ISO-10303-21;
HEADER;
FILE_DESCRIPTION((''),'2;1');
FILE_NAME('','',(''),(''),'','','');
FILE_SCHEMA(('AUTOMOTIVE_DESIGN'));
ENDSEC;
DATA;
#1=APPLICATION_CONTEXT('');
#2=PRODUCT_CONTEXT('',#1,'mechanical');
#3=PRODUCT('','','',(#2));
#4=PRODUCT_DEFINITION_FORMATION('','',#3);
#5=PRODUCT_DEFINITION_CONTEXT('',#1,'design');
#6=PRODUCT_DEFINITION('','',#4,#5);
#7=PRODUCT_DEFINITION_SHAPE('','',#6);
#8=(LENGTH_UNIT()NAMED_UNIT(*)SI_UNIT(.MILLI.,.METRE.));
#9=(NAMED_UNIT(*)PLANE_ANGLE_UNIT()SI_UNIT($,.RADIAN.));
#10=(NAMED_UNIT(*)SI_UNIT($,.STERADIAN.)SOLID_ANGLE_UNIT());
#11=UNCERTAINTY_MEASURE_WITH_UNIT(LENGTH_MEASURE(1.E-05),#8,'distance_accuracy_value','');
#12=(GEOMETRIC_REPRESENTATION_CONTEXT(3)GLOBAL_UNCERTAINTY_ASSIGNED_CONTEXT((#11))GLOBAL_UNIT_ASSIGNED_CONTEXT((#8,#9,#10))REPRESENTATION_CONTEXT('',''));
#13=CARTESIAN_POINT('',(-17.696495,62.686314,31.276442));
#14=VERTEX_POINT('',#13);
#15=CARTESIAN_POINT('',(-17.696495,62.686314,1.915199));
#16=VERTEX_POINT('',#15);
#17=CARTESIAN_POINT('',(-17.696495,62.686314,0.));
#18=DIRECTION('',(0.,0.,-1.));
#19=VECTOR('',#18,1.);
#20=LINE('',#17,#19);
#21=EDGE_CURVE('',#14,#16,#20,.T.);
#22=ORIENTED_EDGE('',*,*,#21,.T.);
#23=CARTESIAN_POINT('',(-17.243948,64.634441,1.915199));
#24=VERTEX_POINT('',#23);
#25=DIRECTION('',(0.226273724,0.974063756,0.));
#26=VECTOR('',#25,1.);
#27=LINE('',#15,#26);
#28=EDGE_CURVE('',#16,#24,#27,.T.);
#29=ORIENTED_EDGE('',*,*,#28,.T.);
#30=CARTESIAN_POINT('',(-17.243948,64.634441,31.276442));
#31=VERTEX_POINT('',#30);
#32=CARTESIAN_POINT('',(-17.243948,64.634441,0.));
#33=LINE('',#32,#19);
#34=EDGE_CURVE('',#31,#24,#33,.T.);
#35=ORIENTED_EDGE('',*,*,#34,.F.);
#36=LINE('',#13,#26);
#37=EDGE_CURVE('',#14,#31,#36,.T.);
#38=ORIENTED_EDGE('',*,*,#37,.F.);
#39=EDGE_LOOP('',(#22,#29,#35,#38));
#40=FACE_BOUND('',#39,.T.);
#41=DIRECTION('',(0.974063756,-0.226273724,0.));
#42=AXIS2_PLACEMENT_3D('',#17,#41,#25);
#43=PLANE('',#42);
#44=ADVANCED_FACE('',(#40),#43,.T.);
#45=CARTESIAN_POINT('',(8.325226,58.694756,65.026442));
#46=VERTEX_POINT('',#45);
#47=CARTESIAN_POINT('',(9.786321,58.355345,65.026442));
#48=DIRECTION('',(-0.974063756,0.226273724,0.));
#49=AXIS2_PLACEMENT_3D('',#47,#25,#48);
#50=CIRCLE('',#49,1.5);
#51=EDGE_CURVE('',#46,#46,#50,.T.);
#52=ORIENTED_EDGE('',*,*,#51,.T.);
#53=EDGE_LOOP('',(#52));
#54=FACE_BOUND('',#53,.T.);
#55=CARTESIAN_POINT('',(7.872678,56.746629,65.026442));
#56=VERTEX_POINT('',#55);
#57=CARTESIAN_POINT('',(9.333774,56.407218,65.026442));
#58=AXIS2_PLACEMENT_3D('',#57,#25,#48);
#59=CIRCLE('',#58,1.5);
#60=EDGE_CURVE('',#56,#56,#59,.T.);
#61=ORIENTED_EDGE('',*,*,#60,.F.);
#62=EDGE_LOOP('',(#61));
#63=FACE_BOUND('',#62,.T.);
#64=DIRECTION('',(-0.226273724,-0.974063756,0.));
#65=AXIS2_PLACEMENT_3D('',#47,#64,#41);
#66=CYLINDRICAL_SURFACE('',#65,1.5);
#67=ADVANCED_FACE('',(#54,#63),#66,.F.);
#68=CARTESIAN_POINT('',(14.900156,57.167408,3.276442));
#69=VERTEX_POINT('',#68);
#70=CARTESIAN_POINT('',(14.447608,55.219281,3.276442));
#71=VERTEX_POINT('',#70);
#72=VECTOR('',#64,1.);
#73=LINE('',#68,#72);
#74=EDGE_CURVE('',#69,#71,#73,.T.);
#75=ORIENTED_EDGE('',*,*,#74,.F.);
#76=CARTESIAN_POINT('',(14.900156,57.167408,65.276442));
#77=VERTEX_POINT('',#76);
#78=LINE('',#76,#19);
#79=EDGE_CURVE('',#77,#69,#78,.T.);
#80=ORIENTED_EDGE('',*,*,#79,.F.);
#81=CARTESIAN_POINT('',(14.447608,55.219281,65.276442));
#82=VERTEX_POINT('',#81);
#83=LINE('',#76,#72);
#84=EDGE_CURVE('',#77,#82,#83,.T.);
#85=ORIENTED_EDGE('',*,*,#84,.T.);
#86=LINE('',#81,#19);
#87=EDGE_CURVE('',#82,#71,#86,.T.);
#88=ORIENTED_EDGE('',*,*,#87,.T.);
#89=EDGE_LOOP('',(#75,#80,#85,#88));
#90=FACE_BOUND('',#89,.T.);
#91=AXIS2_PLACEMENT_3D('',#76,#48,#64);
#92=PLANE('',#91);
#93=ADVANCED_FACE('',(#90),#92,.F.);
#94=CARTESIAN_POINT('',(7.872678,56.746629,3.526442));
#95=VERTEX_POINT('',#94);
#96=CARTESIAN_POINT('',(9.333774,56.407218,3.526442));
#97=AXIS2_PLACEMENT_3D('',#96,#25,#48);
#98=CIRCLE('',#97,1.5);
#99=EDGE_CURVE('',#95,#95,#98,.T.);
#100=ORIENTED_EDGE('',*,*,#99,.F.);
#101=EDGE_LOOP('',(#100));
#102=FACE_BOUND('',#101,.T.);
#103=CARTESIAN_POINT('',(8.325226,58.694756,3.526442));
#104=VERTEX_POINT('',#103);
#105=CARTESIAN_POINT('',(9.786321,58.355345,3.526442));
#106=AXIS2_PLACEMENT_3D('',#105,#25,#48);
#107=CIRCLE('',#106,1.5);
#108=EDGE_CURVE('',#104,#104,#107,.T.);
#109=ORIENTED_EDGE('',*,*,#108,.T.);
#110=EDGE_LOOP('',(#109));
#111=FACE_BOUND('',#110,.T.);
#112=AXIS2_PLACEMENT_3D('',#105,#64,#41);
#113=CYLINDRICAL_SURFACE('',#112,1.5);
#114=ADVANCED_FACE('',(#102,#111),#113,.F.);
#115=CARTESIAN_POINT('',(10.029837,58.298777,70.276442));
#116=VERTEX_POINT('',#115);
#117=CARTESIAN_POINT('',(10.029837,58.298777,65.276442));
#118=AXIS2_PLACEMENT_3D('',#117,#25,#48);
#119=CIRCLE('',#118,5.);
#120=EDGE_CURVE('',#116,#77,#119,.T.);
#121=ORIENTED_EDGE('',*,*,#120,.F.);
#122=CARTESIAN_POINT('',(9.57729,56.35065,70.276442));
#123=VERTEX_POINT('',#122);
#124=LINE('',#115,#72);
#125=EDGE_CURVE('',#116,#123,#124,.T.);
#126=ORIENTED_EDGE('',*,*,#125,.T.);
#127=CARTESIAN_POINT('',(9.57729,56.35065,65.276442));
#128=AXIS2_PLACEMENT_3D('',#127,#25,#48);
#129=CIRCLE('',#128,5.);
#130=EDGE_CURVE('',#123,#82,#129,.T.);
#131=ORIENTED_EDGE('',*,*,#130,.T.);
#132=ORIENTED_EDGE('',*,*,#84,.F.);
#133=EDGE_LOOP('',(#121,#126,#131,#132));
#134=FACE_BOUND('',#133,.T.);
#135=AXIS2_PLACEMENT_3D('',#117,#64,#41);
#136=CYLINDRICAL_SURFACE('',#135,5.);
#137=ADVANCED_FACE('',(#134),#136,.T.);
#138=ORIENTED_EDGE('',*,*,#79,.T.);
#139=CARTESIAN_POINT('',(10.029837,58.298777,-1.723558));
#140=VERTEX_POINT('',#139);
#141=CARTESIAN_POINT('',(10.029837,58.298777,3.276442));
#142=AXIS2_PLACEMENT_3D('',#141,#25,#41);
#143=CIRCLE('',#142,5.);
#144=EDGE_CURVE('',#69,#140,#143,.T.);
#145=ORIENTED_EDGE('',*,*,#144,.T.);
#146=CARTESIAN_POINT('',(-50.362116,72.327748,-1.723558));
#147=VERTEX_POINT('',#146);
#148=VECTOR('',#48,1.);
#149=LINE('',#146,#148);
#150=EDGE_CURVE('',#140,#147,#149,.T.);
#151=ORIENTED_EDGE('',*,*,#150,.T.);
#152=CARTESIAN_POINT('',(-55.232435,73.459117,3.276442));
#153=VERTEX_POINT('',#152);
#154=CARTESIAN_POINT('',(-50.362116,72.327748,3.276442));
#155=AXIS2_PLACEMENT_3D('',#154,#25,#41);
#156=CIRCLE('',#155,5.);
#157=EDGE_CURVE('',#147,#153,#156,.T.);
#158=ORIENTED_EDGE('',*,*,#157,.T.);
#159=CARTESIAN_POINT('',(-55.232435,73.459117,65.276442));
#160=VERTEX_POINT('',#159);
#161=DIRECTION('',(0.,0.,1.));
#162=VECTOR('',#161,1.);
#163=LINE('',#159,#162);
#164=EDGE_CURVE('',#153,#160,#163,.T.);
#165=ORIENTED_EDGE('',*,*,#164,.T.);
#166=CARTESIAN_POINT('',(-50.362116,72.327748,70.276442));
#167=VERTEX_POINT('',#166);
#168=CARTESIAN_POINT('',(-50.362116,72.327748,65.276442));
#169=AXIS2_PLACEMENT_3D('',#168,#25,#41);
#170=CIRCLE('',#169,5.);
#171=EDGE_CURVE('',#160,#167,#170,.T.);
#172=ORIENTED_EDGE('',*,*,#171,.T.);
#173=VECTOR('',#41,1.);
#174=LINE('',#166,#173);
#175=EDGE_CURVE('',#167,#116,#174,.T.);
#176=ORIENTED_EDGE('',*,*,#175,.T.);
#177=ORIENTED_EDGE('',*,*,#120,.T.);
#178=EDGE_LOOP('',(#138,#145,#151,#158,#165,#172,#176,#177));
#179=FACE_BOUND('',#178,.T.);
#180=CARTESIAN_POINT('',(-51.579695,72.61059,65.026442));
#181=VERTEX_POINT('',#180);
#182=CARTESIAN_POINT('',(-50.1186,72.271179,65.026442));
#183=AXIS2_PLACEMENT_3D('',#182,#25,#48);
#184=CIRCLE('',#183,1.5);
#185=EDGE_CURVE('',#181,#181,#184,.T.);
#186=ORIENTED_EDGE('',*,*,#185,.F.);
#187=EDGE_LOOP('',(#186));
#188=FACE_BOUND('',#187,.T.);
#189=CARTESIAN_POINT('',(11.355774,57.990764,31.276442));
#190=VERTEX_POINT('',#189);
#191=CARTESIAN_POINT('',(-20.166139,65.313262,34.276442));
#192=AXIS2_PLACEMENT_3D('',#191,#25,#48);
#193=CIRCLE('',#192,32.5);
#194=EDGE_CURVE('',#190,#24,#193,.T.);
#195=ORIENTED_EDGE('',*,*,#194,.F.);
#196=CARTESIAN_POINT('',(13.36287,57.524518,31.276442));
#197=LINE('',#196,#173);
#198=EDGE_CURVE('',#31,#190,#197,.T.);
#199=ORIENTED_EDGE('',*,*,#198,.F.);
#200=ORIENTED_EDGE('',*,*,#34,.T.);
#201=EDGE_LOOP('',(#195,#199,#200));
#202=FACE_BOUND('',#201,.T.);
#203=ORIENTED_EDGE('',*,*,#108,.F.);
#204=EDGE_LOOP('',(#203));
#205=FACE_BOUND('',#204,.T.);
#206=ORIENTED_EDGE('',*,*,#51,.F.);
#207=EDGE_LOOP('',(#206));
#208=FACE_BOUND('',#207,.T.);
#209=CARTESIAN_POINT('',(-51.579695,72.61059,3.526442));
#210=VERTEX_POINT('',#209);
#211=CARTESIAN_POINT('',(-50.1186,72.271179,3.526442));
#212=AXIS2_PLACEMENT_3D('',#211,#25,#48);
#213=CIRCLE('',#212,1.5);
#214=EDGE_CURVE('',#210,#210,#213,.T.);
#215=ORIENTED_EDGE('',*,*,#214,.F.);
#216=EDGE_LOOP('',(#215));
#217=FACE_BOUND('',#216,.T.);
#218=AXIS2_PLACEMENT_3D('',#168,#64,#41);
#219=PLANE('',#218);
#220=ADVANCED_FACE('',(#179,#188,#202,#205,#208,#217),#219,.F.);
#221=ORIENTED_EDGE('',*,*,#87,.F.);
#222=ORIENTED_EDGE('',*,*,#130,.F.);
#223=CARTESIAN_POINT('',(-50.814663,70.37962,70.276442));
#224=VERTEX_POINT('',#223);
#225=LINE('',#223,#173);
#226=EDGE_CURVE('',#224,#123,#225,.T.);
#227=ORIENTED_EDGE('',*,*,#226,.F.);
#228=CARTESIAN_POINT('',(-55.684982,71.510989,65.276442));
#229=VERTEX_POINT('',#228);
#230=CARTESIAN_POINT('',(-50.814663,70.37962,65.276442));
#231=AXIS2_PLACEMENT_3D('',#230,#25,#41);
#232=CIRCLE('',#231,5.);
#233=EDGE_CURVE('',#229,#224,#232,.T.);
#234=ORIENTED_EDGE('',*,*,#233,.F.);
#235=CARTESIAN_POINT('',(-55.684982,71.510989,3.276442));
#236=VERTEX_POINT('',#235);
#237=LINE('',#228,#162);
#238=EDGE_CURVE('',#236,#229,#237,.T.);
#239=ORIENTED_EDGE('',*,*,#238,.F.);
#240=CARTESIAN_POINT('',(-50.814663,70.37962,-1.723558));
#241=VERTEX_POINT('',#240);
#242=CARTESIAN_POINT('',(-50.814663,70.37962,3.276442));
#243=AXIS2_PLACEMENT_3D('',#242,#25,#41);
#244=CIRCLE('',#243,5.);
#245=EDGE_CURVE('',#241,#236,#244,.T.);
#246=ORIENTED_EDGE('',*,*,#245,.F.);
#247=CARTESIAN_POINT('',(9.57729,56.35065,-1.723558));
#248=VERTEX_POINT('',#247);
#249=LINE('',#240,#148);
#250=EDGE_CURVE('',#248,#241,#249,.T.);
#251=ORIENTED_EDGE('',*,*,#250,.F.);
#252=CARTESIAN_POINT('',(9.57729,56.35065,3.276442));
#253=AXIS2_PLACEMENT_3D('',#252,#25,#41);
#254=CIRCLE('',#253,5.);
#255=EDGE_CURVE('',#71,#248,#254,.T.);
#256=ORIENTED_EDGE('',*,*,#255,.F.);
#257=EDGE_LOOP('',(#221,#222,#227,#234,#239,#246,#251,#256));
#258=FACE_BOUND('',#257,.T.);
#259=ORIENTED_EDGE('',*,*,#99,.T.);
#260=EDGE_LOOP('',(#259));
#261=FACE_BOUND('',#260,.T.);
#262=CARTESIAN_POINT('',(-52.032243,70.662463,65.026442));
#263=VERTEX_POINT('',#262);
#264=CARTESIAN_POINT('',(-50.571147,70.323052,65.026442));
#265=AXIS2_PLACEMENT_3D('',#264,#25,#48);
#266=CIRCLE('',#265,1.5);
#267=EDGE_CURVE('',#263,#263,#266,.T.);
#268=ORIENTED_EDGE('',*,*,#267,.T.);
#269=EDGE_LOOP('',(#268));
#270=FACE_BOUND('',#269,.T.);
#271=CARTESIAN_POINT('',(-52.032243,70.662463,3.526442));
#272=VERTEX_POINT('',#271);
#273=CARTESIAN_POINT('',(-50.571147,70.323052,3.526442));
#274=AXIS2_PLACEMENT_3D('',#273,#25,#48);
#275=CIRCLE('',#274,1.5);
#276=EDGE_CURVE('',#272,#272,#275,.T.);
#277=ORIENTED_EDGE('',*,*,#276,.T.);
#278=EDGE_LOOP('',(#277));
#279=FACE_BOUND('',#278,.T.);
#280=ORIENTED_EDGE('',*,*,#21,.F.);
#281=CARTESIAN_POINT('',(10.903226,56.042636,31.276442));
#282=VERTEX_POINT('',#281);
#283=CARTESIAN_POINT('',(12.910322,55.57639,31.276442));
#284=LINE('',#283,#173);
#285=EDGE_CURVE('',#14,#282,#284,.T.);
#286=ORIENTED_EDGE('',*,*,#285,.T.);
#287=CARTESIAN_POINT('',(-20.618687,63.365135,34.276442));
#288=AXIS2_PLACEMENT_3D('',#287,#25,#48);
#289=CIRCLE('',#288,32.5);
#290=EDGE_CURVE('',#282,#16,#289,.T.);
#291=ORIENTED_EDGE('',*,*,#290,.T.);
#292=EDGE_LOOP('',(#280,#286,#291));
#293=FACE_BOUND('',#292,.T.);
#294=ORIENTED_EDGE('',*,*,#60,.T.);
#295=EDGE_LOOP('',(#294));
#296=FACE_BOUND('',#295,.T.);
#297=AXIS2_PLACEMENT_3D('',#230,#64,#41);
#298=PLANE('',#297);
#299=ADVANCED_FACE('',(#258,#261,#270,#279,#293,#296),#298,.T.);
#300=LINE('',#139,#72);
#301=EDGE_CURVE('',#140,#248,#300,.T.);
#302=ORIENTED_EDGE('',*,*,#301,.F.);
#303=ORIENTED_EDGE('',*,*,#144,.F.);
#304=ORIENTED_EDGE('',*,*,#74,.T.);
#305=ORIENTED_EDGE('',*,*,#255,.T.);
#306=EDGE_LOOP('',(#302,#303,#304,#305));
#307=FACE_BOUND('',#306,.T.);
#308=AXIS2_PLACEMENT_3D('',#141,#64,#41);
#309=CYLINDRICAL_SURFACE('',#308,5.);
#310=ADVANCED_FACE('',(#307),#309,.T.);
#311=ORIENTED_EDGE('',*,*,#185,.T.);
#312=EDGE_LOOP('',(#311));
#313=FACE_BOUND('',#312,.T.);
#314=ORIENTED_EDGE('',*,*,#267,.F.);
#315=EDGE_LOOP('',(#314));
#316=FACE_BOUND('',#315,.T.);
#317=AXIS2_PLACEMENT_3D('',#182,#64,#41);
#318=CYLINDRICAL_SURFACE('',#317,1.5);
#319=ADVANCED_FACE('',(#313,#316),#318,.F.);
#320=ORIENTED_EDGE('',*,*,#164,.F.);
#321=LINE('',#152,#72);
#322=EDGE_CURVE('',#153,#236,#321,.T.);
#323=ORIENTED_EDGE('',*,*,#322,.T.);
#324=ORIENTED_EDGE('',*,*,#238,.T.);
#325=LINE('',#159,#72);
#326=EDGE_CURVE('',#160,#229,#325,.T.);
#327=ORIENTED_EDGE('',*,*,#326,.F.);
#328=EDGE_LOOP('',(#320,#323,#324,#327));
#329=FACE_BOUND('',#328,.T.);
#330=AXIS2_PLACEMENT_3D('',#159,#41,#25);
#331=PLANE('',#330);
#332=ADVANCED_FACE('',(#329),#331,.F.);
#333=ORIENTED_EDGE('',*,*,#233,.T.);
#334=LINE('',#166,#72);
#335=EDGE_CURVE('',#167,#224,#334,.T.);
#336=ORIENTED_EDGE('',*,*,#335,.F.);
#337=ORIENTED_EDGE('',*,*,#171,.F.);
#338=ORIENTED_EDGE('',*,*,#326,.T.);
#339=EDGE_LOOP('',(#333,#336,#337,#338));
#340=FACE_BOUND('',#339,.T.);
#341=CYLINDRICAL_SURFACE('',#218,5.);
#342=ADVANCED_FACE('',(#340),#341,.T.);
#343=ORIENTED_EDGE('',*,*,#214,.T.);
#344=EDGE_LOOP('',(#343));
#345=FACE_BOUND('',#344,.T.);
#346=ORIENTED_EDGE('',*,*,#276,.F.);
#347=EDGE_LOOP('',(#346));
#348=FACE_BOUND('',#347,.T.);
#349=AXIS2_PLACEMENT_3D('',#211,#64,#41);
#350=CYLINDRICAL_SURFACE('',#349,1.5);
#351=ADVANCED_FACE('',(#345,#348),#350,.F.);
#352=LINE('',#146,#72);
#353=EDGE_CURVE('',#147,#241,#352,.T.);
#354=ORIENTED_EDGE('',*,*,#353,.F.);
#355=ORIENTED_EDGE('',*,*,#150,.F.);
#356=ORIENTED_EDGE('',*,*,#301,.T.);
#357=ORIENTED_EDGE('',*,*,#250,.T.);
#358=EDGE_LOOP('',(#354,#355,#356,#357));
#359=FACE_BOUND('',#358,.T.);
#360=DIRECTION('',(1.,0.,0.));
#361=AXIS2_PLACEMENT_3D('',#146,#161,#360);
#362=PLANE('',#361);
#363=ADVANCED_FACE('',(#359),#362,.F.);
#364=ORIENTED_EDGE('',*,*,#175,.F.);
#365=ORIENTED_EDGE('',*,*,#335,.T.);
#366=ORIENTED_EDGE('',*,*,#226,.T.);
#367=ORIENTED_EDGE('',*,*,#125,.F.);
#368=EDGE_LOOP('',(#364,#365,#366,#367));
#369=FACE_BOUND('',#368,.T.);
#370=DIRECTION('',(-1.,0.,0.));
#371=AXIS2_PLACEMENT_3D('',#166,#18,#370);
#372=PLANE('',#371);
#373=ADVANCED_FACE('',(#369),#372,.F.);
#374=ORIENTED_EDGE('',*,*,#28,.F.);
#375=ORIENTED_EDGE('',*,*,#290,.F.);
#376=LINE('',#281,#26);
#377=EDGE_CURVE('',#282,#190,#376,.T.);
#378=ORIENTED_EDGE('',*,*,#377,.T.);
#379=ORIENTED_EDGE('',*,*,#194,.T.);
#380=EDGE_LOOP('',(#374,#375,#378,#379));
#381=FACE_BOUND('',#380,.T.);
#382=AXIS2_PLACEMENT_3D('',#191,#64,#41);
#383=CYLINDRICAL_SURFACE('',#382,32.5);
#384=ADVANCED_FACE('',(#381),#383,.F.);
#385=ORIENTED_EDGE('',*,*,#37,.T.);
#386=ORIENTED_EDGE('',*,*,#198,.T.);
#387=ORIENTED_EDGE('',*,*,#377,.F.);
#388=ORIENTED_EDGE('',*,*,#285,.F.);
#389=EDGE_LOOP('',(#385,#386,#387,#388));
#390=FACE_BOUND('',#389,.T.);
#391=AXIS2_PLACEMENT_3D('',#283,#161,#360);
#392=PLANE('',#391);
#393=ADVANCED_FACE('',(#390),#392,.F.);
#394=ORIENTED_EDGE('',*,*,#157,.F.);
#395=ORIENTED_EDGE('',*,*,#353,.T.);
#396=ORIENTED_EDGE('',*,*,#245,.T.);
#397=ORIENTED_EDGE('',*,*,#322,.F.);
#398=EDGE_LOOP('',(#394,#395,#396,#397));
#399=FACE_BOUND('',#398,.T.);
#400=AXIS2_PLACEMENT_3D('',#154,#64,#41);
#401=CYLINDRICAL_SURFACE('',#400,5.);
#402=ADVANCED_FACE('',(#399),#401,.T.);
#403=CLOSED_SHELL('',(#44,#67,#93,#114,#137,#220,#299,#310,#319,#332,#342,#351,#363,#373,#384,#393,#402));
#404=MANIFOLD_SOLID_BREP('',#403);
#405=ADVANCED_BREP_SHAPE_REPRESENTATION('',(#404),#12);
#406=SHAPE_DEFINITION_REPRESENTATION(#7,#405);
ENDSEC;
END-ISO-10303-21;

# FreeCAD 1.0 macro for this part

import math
import FreeCAD as App
import Part
import Sketcher

V = App.Vector
Q = App.Units.Quantity

doc = App.newDocument("Part")
body = doc.addObject("PartDesign::Body", "Body")

sketch1 = body.newObject("Sketcher::SketchObject", "Sketch")
sketch1.Placement = App.Placement(V(12.910322, 55.57639, 0), App.Rotation(V(0.974063757, -0.226273724, 0), V(0, 0, -1.000000001), V(0.226273724, 0.974063757, 0), "ZXY"))
sketch1.addGeometry(Part.LineSegment(V(-65.421781, -70.276442, 0), V(-3.421781, -70.276442, 0)), False)
sketch1.addGeometry(Part.ArcOfCircle(Part.Circle(V(-3.421781, -65.276442, 0), V(0, 0, 1), 5), math.radians(-90), math.radians(0)), False)
sketch1.addGeometry(Part.LineSegment(V(1.578219, -65.276442, 0), V(1.578219, -3.276442, 0)), False)
sketch1.addGeometry(Part.ArcOfCircle(Part.Circle(V(-3.421781, -3.276442, 0), V(0, 0, 1), 5), math.radians(0), math.radians(90)), False)
sketch1.addGeometry(Part.LineSegment(V(-3.421781, 1.723558, 0), V(-65.421781, 1.723558, 0)), False)
sketch1.addGeometry(Part.ArcOfCircle(Part.Circle(V(-65.421781, -3.276442, 0), V(0, 0, 1), 5), math.radians(90), math.radians(180)), False)
sketch1.addGeometry(Part.LineSegment(V(-70.421781, -3.276442, 0), V(-70.421781, -65.276442, 0)), False)
sketch1.addGeometry(Part.ArcOfCircle(Part.Circle(V(-65.421781, -65.276442, 0), V(0, 0, 1), 5), math.radians(180), math.radians(270)), False)
sketch1.addGeometry(Part.Circle(V(-65.171781, -65.026442, 0), V(0, 0, 1), 1.5), False)
sketch1.addGeometry(Part.Circle(V(-3.671781, -65.026442, 0), V(0, 0, 1), 1.5), False)
sketch1.addGeometry(Part.Circle(V(-65.171781, -3.526442, 0), V(0, 0, 1), 1.5), False)
sketch1.addGeometry(Part.Circle(V(-34.421781, -34.276442, 0), V(0, 0, 1), 32.5), False)
sketch1.addGeometry(Part.Circle(V(-3.671781, -3.526442, 0), V(0, 0, 1), 1.5), False)
sketch1.addConstraint(Sketcher.Constraint("Tangent", 0, 2, 1, 1))
sketch1.addConstraint(Sketcher.Constraint("Tangent", 1, 2, 2, 1))
sketch1.addConstraint(Sketcher.Constraint("Tangent", 2, 2, 3, 1))
sketch1.addConstraint(Sketcher.Constraint("Tangent", 3, 2, 4, 1))
sketch1.addConstraint(Sketcher.Constraint("Tangent", 4, 2, 5, 1))
sketch1.addConstraint(Sketcher.Constraint("Tangent", 5, 2, 6, 1))
sketch1.addConstraint(Sketcher.Constraint("Tangent", 6, 2, 7, 1))
sketch1.addConstraint(Sketcher.Constraint("Tangent", 7, 2, 0, 1))
sketch1.addConstraint(Sketcher.Constraint("Horizontal", 0))
sketch1.addConstraint(Sketcher.Constraint("Vertical", 2))
sketch1.addConstraint(Sketcher.Constraint("Horizontal", 4))
sketch1.addConstraint(Sketcher.Constraint("Vertical", 6))
sketch1.addConstraint(Sketcher.Constraint("Equal", 1, 3))
sketch1.addConstraint(Sketcher.Constraint("Equal", 3, 5))
sketch1.addConstraint(Sketcher.Constraint("Equal", 5, 7))
sketch1.addConstraint(Sketcher.Constraint("Equal", 8, 9))
sketch1.addConstraint(Sketcher.Constraint("Equal", 9, 10))
sketch1.addConstraint(Sketcher.Constraint("Equal", 10, 12))
sketch1.addConstraint(Sketcher.Constraint("Horizontal", 8, 3, 9, 3))
sketch1.addConstraint(Sketcher.Constraint("Horizontal", 10, 3, 12, 3))
sketch1.addConstraint(Sketcher.Constraint("Vertical", 8, 3, 10, 3))
sketch1.addConstraint(Sketcher.Constraint("Vertical", 9, 3, 12, 3))
sketch1.addConstraint(Sketcher.Constraint("Equal", 4, 2))
sketch1.addConstraint(Sketcher.Constraint("Diameter", 8, Q("3 mm")))
sketch1.addConstraint(Sketcher.Constraint("Diameter", 11, Q("65 mm")))
sketch1.addConstraint(Sketcher.Constraint("Radius", 1, Q("5 mm")))
sketch1.addConstraint(Sketcher.Constraint("DistanceX", 0, 1, 0, 2, Q("62 mm")))
sketch1.addConstraint(Sketcher.Constraint("DistanceX", 11, 3, 1, 3, Q("31 mm")))
sketch1.addConstraint(Sketcher.Constraint("DistanceY", 1, 3, 11, 3, Q("31 mm")))
sketch1.addConstraint(Sketcher.Constraint("DistanceX", 8, 3, 9, 3, Q("61.5 mm")))
sketch1.addConstraint(Sketcher.Constraint("DistanceY", 8, 3, 10, 3, Q("61.5 mm")))
sketch1.addConstraint(Sketcher.Constraint("DistanceX", 7, 3, 8, 3, Q("0.25 mm")))
sketch1.addConstraint(Sketcher.Constraint("DistanceY", 7, 3, 8, 3, Q("0.25 mm")))
sketch1.addConstraint(Sketcher.Constraint("DistanceX", 1, 3, -1, 1, Q("3.421781 mm")))
sketch1.addConstraint(Sketcher.Constraint("DistanceY", 1, 3, -1, 1, Q("65.276442 mm")))
pad1 = body.newObject("PartDesign::Pad", "Pad")
pad1.Profile = sketch1
pad1.Length = 2

sketch2 = body.newObject("Sketcher::SketchObject", "Sketch001")
sketch2.Placement = App.Placement(V(13.36287, 57.524518, 0), App.Rotation(V(0.974063757, -0.226273724, 0), V(0, 0, -1.000000001), V(0.226273724, 0.974063757, 0), "ZXY"))
sketch2.addGeometry(Part.LineSegment(V(-2.060538, -31.276442, 0), V(-31.421781, -31.276442, 0)), False)
sketch2.addGeometry(Part.LineSegment(V(-31.421781, -31.276442, 0), V(-31.421781, -1.915199, 0)), False)
sketch2.addGeometry(Part.ArcOfCircle(Part.Circle(V(-34.421781, -34.276442, 0), V(0, 0, 1), 32.5), math.radians(84.703619), math.radians(365.296381)), False)
sketch2.addConstraint(Sketcher.Constraint("Coincident", 0, 2, 1, 1))
sketch2.addConstraint(Sketcher.Constraint("Coincident", 1, 2, 2, 1))
sketch2.addConstraint(Sketcher.Constraint("Coincident", 2, 2, 0, 1))
sketch2.addConstraint(Sketcher.Constraint("Horizontal", 0))
sketch2.addConstraint(Sketcher.Constraint("Vertical", 1))
sketch2.addConstraint(Sketcher.Constraint("Equal", 0, 1))
sketch2.addConstraint(Sketcher.Constraint("Radius", 2, Q("32.5 mm")))
sketch2.addConstraint(Sketcher.Constraint("DistanceX", 2, 3, 0, 2, Q("3 mm")))
sketch2.addConstraint(Sketcher.Constraint("DistanceY", 1, 2, -1, 1, Q("1.915199 mm")))
sketch2.addConstraint(Sketcher.Constraint("DistanceX", 2, 3, -1, 1, Q("34.421781 mm")))
pad2 = body.newObject("PartDesign::Pad", "Pad001")
pad2.Profile = sketch2
pad2.Length = 2
pad2.Reversed = True

doc.recompute()
